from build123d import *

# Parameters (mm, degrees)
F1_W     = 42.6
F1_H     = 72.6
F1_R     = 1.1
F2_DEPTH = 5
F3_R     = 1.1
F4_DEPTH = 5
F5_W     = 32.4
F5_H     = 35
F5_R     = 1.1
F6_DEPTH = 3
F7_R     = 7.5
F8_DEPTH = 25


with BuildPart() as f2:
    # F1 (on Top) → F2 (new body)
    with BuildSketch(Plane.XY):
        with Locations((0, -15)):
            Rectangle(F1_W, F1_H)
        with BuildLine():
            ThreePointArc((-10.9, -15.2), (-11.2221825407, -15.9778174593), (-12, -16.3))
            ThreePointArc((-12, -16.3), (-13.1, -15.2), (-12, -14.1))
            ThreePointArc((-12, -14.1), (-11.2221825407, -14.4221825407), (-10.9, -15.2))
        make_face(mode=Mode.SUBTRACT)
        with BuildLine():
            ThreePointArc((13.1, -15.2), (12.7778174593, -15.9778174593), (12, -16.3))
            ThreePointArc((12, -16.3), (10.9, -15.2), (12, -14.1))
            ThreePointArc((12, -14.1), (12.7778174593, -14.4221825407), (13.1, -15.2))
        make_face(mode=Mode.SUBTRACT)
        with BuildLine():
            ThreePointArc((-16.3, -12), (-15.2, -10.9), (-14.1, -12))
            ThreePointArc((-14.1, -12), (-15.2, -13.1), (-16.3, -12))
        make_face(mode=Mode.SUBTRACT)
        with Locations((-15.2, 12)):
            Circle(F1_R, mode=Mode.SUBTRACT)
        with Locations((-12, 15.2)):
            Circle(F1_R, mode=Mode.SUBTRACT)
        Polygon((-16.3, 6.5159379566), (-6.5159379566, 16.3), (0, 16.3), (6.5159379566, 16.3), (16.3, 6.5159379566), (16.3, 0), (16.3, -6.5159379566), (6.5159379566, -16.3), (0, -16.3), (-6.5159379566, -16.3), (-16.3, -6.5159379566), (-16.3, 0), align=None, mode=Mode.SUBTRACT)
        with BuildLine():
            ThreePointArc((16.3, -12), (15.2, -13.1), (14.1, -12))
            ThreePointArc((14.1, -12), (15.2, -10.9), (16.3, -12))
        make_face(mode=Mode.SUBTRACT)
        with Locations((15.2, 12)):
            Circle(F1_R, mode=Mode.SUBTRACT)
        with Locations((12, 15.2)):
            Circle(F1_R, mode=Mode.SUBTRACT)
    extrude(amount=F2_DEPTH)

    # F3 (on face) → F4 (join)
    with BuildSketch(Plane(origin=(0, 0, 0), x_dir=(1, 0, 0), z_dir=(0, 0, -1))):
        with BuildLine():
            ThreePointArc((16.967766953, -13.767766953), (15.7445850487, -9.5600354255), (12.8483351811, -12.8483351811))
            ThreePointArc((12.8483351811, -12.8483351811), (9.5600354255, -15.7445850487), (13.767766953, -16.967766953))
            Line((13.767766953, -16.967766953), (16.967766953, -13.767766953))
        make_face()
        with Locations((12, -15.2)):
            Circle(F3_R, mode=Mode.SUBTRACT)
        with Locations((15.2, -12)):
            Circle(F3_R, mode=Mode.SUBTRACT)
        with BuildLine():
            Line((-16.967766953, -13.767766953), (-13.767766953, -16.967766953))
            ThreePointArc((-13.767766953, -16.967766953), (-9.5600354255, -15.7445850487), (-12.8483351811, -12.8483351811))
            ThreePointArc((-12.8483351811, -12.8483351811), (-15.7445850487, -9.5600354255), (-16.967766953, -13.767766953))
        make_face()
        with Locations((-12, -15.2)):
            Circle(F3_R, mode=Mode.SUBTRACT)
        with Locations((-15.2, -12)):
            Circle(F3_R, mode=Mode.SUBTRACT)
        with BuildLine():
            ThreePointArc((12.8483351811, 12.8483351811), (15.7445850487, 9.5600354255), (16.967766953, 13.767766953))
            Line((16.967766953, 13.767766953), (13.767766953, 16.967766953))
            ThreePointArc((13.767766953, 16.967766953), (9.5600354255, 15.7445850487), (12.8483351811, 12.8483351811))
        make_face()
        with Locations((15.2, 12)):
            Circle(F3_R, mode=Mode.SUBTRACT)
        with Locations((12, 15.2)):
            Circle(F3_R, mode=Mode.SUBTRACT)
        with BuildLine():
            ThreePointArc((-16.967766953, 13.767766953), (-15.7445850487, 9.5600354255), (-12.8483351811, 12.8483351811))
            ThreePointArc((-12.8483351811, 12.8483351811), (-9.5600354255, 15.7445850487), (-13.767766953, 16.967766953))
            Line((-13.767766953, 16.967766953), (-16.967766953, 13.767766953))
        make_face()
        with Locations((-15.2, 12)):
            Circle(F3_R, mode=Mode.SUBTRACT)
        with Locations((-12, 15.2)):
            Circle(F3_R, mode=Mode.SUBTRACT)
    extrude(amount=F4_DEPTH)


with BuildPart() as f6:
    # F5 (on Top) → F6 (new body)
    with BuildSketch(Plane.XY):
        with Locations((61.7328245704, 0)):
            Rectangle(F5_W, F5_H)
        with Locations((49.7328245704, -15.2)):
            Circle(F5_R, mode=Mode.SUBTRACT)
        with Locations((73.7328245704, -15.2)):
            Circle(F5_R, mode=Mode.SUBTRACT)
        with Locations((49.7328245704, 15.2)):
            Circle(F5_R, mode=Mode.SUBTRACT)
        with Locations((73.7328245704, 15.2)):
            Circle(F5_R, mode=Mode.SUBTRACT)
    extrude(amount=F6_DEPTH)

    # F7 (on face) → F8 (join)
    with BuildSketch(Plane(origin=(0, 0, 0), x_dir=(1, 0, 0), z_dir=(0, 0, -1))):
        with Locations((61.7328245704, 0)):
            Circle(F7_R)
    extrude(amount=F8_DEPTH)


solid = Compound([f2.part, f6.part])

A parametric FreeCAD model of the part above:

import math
import FreeCAD as App
import Part
import Sketcher
Q = App.Units.Quantity


def add_polygon(sketch, points):
    """Adds a closed chain of lines whose ends are joined by coincident constraints."""
    first, n = sketch.GeometryCount, len(points)
    for a, b in zip(points, points[1:] + points[:1]):
        sketch.addGeometry(Part.LineSegment(App.Vector(*a, 0), App.Vector(*b, 0)), False)
    for i in range(n):
        sketch.addConstraint(Sketcher.Constraint("Coincident", first + i, 2, first + (i + 1) % n, 1))

doc = App.newDocument("Part")
params = doc.addObject("Spreadsheet::Sheet", "Params")
for row, (alias, value) in enumerate([
    ("sketch1_diameter", "2.2 mm"),
    ("sketch1_width", "42.6 mm"),
    ("sketch1_height", "72.6 mm"),
    ("pad1_length", "5 mm"),
    ("sketch2_diameter", "2.2 mm"),
    ("sketch2_radius", "2.5 mm"),
    ("pad2_length", "5 mm"),
    ("sketch3_diameter", "2.2 mm"),
    ("sketch3_height", "35 mm"),
    ("sketch3_width", "32.4 mm"),
    ("pad3_length", "3 mm"),
    ("sketch4_diameter", "15 mm"),
    ("pad4_length", "25 mm"),
], start=1):
    params.set(f"A{row}", alias)
    params.set(f"B{row}", "=" + value)
    params.setAlias(f"B{row}", alias)

body = doc.addObject("PartDesign::Body", "Body")

# Sketch on XY plane
sketch1 = body.newObject("Sketcher::SketchObject", "Sketch")
sketch1.AttachmentSupport = (doc.getObject("XY_Plane"), [""])
sketch1.MapMode = "FlatFace"
add_polygon(sketch1, [(-21.3, 21.3), (-21.3, -51.3), (21.3, -51.3), (21.3, 21.3)])  # lines 0-3
sketch1.addGeometry(Part.ArcOfCircle(Part.Circle(App.Vector(-12, -15.2, 0), App.Vector(0, 0, 1), 1.1), math.radians(0), math.radians(90)), False)  # 4
sketch1.addGeometry(Part.ArcOfCircle(Part.Circle(App.Vector(-12, -15.2, 0), App.Vector(0, 0, 1), 1.1), math.radians(-90), math.radians(0)), False)  # 5
sketch1.addGeometry(Part.ArcOfCircle(Part.Circle(App.Vector(-12, -15.2, 0), App.Vector(0, 0, 1), 1.1), math.radians(90), math.radians(270)), False)  # 6
sketch1.addGeometry(Part.Circle(App.Vector(-15.2, -12, 0), App.Vector(0, 0, 1), 1.1), False)  # 7
sketch1.addGeometry(Part.ArcOfCircle(Part.Circle(App.Vector(12, -15.2, 0), App.Vector(0, 0, 1), 1.1), math.radians(0), math.radians(90)), False)  # 8
sketch1.addGeometry(Part.ArcOfCircle(Part.Circle(App.Vector(12, -15.2, 0), App.Vector(0, 0, 1), 1.1), math.radians(-90), math.radians(0)), False)  # 9
sketch1.addGeometry(Part.ArcOfCircle(Part.Circle(App.Vector(12, -15.2, 0), App.Vector(0, 0, 1), 1.1), math.radians(90), math.radians(270)), False)  # 10
sketch1.addGeometry(Part.Circle(App.Vector(15.2, -12, 0), App.Vector(0, 0, 1), 1.1), False)  # 11
sketch1.addGeometry(Part.Circle(App.Vector(-15.2, 12, 0), App.Vector(0, 0, 1), 1.1), False)  # 12
sketch1.addGeometry(Part.Circle(App.Vector(-12, 15.2, 0), App.Vector(0, 0, 1), 1.1), False)  # 13
add_polygon(sketch1, [(-16.3, -6.5), (-16.3, 6.5), (-6.5, 16.3), (6.5, 16.3), (16.3, 6.5), (16.3, -6.5), (6.5, -16.3), (-6.5, -16.3)])  # lines 14-21
sketch1.addGeometry(Part.Circle(App.Vector(15.2, 12, 0), App.Vector(0, 0, 1), 1.1), False)  # 22
sketch1.addGeometry(Part.Circle(App.Vector(12, 15.2, 0), App.Vector(0, 0, 1), 1.1), False)  # 23
sketch1.addConstraint(Sketcher.Constraint("Tangent", 4, 1, 5, 2))
sketch1.addConstraint(Sketcher.Constraint("Tangent", 5, 1, 6, 2))
sketch1.addConstraint(Sketcher.Constraint("Tangent", 6, 1, 4, 2))
sketch1.addConstraint(Sketcher.Constraint("Tangent", 8, 1, 9, 2))
sketch1.addConstraint(Sketcher.Constraint("Tangent", 9, 1, 10, 2))
sketch1.addConstraint(Sketcher.Constraint("Tangent", 10, 1, 8, 2))
sketch1.addConstraint(Sketcher.Constraint("Vertical", 0))
sketch1.addConstraint(Sketcher.Constraint("Horizontal", 1))
sketch1.addConstraint(Sketcher.Constraint("Vertical", 2))
sketch1.addConstraint(Sketcher.Constraint("Horizontal", 3))
sketch1.addConstraint(Sketcher.Constraint("Vertical", 14))
sketch1.addConstraint(Sketcher.Constraint("Horizontal", 16))
sketch1.addConstraint(Sketcher.Constraint("Vertical", 18))
sketch1.addConstraint(Sketcher.Constraint("Horizontal", 20))
sketch1.addConstraint(Sketcher.Constraint("Equal", 6, 7))
sketch1.addConstraint(Sketcher.Constraint("Equal", 7, 8))
sketch1.addConstraint(Sketcher.Constraint("Equal", 10, 11))
sketch1.addConstraint(Sketcher.Constraint("Equal", 11, 12))
sketch1.addConstraint(Sketcher.Constraint("Equal", 12, 13))
sketch1.addConstraint(Sketcher.Constraint("Equal", 13, 22))
sketch1.addConstraint(Sketcher.Constraint("Equal", 22, 23))
sketch1.addConstraint(Sketcher.Constraint("Symmetric", 11, 3, 12, 3, -1, 1))
sketch1.addConstraint(Sketcher.Constraint("Symmetric", 8, 3, 13, 3, -1, 1))
sketch1.addConstraint(Sketcher.Constraint("Symmetric", 7, 3, 22, 3, -1, 1))
sketch1.addConstraint(Sketcher.Constraint("Symmetric", 4, 3, 23, 3, -1, 1))
sketch1.addConstraint(Sketcher.Constraint("Symmetric", 14, 2, 18, 2, -1, 1))
sketch1.addConstraint(Sketcher.Constraint("Symmetric", 15, 2, 19, 2, -1, 1))
sketch1.addConstraint(Sketcher.Constraint("Symmetric", 4, 3, 8, 3, -2))
sketch1.addConstraint(Sketcher.Constraint("Symmetric", 7, 3, 11, 3, -2))
sketch1.addConstraint(Sketcher.Constraint("Perpendicular", 15, 17))
sketch1.addConstraint(Sketcher.Constraint("Perpendicular", 19, 21))
sketch1.addConstraint(Sketcher.Constraint("Horizontal", 10, 3, 4, 1))
sketch1.addConstraint(Sketcher.Constraint("Horizontal", 4, 1, 8, 1))
sketch1.addConstraint(Sketcher.Constraint("Horizontal", 14, 2, 17, 2))
sketch1.addConstraint(Sketcher.Constraint("Horizontal", 9, 1, 19, 2))
sketch1.addConstraint(Sketcher.Constraint("Horizontal", 18, 2, 21, 2))
sketch1.addConstraint(Sketcher.Constraint("Vertical", 13, 3, 5, 1))
sketch1.addConstraint(Sketcher.Constraint("Vertical", 5, 1, 6, 1))
sketch1.addConstraint(Sketcher.Constraint("Vertical", 23, 3, 9, 1))
sketch1.addConstraint(Sketcher.Constraint("Vertical", 9, 1, 10, 1))
sketch1.addConstraint(Sketcher.Constraint("Vertical", 16, 2, 19, 2))
sketch1.addConstraint(Sketcher.Constraint("Equal", 20, 14))
sketch1.addConstraint(Sketcher.Constraint("Diameter", 7, Q("2.2 mm")))
sketch1.addConstraint(Sketcher.Constraint("DistanceX", 1, 1, 1, 2, Q("42.6 mm")))
sketch1.addConstraint(Sketcher.Constraint("DistanceY", 0, 2, 0, 1, Q("72.6 mm")))
sketch1.addConstraint(Sketcher.Constraint("DistanceX", 4, 3, -1, 1, Q("12 mm")))
sketch1.addConstraint(Sketcher.Constraint("DistanceY", 7, 3, -1, 1, Q("12 mm")))
sketch1.addConstraint(Sketcher.Constraint("DistanceX", 3, 2, 14, 2, Q("5 mm")))
sketch1.addConstraint(Sketcher.Constraint("DistanceY", 15, 2, 3, 2, Q("5 mm")))
sketch1.addConstraint(Sketcher.Constraint("DistanceX", 17, 2, 2, 2, Q("5 mm")))
sketch1.addConstraint(Sketcher.Constraint("DistanceX", 7, 3, -1, 1, Q("15.2 mm")))
sketch1.addConstraint(Sketcher.Constraint("DistanceX", 16, 1, 16, 2, Q("13.031876 mm")))
sketch1.setExpression("Constraints[54]", "Params.sketch1_diameter")
sketch1.setExpression("Constraints[55]", "Params.sketch1_width")
sketch1.setExpression("Constraints[56]", "Params.sketch1_height")
pad1 = body.newObject("PartDesign::Pad", "Pad")
pad1.Profile = sketch1
pad1.setExpression("Length", "Params.pad1_length")

# Sketch on XY plane
sketch2 = body.newObject("Sketcher::SketchObject", "Sketch001")
sketch2.AttachmentSupport = (doc.getObject("XY_Plane"), [""])
sketch2.MapMode = "FlatFace"
sketch2.addGeometry(Part.ArcOfCircle(Part.Circle(App.Vector(15.2, 12, 0), App.Vector(0, 0, 1), 2.5), math.radians(160), math.radians(405)), False)
sketch2.addGeometry(Part.ArcOfCircle(Part.Circle(App.Vector(12, 15.2, 0), App.Vector(0, 0, 1), 2.5), math.radians(45), math.radians(290)), False)
sketch2.addGeometry(Part.LineSegment(App.Vector(13.8, 17, 0), App.Vector(17, 13.8, 0)), False)
sketch2.addGeometry(Part.Circle(App.Vector(12, 15.2, 0), App.Vector(0, 0, 1), 1.1), False)
sketch2.addGeometry(Part.Circle(App.Vector(15.2, 12, 0), App.Vector(0, 0, 1), 1.1), False)
sketch2.addGeometry(Part.LineSegment(App.Vector(-17, 13.8, 0), App.Vector(-13.8, 17, 0)), False)
sketch2.addGeometry(Part.ArcOfCircle(Part.Circle(App.Vector(-12, 15.2, 0), App.Vector(0, 0, 1), 2.5), math.radians(-110), math.radians(135)), False)
sketch2.addGeometry(Part.ArcOfCircle(Part.Circle(App.Vector(-15.2, 12, 0), App.Vector(0, 0, 1), 2.5), math.radians(135), math.radians(380)), False)
sketch2.addGeometry(Part.Circle(App.Vector(-12, 15.2, 0), App.Vector(0, 0, 1), 1.1), False)
sketch2.addGeometry(Part.Circle(App.Vector(-15.2, 12, 0), App.Vector(0, 0, 1), 1.1), False)
sketch2.addGeometry(Part.ArcOfCircle(Part.Circle(App.Vector(15.2, -12, 0), App.Vector(0, 0, 1), 2.5), math.radians(-45), math.radians(200)), False)
sketch2.addGeometry(Part.LineSegment(App.Vector(17, -13.8, 0), App.Vector(13.8, -17, 0)), False)
sketch2.addGeometry(Part.ArcOfCircle(Part.Circle(App.Vector(12, -15.2, 0), App.Vector(0, 0, 1), 2.5), math.radians(70), math.radians(315)), False)
sketch2.addGeometry(Part.Circle(App.Vector(15.2, -12, 0), App.Vector(0, 0, 1), 1.1), False)
sketch2.addGeometry(Part.Circle(App.Vector(12, -15.2, 0), App.Vector(0, 0, 1), 1.1), False)
sketch2.addGeometry(Part.ArcOfCircle(Part.Circle(App.Vector(-15.2, -12, 0), App.Vector(0, 0, 1), 2.5), math.radians(-20), math.radians(225)), False)
sketch2.addGeometry(Part.ArcOfCircle(Part.Circle(App.Vector(-12, -15.2, 0), App.Vector(0, 0, 1), 2.5), math.radians(-135), math.radians(110)), False)
sketch2.addGeometry(Part.LineSegment(App.Vector(-13.8, -17, 0), App.Vector(-17, -13.8, 0)), False)
sketch2.addGeometry(Part.Circle(App.Vector(-15.2, -12, 0), App.Vector(0, 0, 1), 1.1), False)
sketch2.addGeometry(Part.Circle(App.Vector(-12, -15.2, 0), App.Vector(0, 0, 1), 1.1), False)
sketch2.addConstraint(Sketcher.Constraint("Coincident", 0, 1, 1, 2))
sketch2.addConstraint(Sketcher.Constraint("Tangent", 1, 1, 2, 1))
sketch2.addConstraint(Sketcher.Constraint("Tangent", 2, 2, 0, 2))
sketch2.addConstraint(Sketcher.Constraint("Tangent", 5, 2, 6, 2))
sketch2.addConstraint(Sketcher.Constraint("Coincident", 6, 1, 7, 2))
sketch2.addConstraint(Sketcher.Constraint("Tangent", 7, 1, 5, 1))
sketch2.addConstraint(Sketcher.Constraint("Tangent", 10, 1, 11, 1))
sketch2.addConstraint(Sketcher.Constraint("Tangent", 11, 2, 12, 2))
sketch2.addConstraint(Sketcher.Constraint("Coincident", 12, 1, 10, 2))
sketch2.addConstraint(Sketcher.Constraint("Coincident", 15, 1, 16, 2))
sketch2.addConstraint(Sketcher.Constraint("Tangent", 16, 1, 17, 1))
sketch2.addConstraint(Sketcher.Constraint("Tangent", 17, 2, 15, 2))
sketch2.addConstraint(Sketcher.Constraint("Coincident", 3, 3, 1, 3))
sketch2.addConstraint(Sketcher.Constraint("Coincident", 4, 3, 0, 3))
sketch2.addConstraint(Sketcher.Constraint("Coincident", 8, 3, 6, 3))
sketch2.addConstraint(Sketcher.Constraint("Coincident", 9, 3, 7, 3))
sketch2.addConstraint(Sketcher.Constraint("Coincident", 13, 3, 10, 3))
sketch2.addConstraint(Sketcher.Constraint("Coincident", 14, 3, 12, 3))
sketch2.addConstraint(Sketcher.Constraint("Coincident", 18, 3, 15, 3))
sketch2.addConstraint(Sketcher.Constraint("Coincident", 19, 3, 16, 3))
sketch2.addConstraint(Sketcher.Constraint("Equal", 0, 1))
sketch2.addConstraint(Sketcher.Constraint("Equal", 3, 4))
sketch2.addConstraint(Sketcher.Constraint("Equal", 1, 6))
sketch2.addConstraint(Sketcher.Constraint("Equal", 6, 7))
sketch2.addConstraint(Sketcher.Constraint("Equal", 4, 8))
sketch2.addConstraint(Sketcher.Constraint("Equal", 8, 9))
sketch2.addConstraint(Sketcher.Constraint("Equal", 7, 10))
sketch2.addConstraint(Sketcher.Constraint("Equal", 10, 12))
sketch2.addConstraint(Sketcher.Constraint("Equal", 9, 13))
sketch2.addConstraint(Sketcher.Constraint("Equal", 13, 14))
sketch2.addConstraint(Sketcher.Constraint("Equal", 12, 15))
sketch2.addConstraint(Sketcher.Constraint("Equal", 15, 16))
sketch2.addConstraint(Sketcher.Constraint("Equal", 14, 18))
sketch2.addConstraint(Sketcher.Constraint("Equal", 18, 19))
sketch2.addConstraint(Sketcher.Constraint("Symmetric", 7, 3, 10, 3, -1, 1))
sketch2.addConstraint(Sketcher.Constraint("Symmetric", 6, 3, 12, 3, -1, 1))
sketch2.addConstraint(Sketcher.Constraint("Symmetric", 0, 3, 15, 3, -1, 1))
sketch2.addConstraint(Sketcher.Constraint("Symmetric", 1, 3, 16, 3, -1, 1))
sketch2.addConstraint(Sketcher.Constraint("Symmetric", 1, 3, 6, 3, -2))
sketch2.addConstraint(Sketcher.Constraint("Symmetric", 0, 3, 7, 3, -2))
sketch2.addConstraint(Sketcher.Constraint("Perpendicular", 2, 5))
sketch2.addConstraint(Sketcher.Constraint("Diameter", 3, Q("2.2 mm")))
sketch2.addConstraint(Sketcher.Constraint("Radius", 0, Q("2.5 mm")))
sketch2.addConstraint(Sketcher.Constraint("DistanceY", -1, 1, 0, 3, Q("12 mm")))
sketch2.addConstraint(Sketcher.Constraint("DistanceX", -1, 1, 1, 3, Q("12 mm")))
sketch2.addConstraint(Sketcher.Constraint("DistanceX", -1, 1, 0, 3, Q("15.2 mm")))
sketch2.setExpression("Constraints[41]", "Params.sketch2_diameter")
sketch2.setExpression("Constraints[42]", "Params.sketch2_radius")
pad2 = body.newObject("PartDesign::Pad", "Pad001")
pad2.Profile = sketch2
pad2.setExpression("Length", "Params.pad2_length")
pad2.Reversed = True
body2 = doc.addObject("PartDesign::Body", "Body001")

# Sketch on XY plane
sketch3 = body2.newObject("Sketcher::SketchObject", "Sketch002")
sketch3.AttachmentSupport = (doc.getObject("XY_Plane001"), [""])
sketch3.MapMode = "FlatFace"
add_polygon(sketch3, [(45.5, 17.5), (45.5, -17.5), (77.9, -17.5), (77.9, 17.5)])  # lines 0-3
sketch3.addGeometry(Part.Circle(App.Vector(49.7, -15.2, 0), App.Vector(0, 0, 1), 1.1), False)  # 4
sketch3.addGeometry(Part.Circle(App.Vector(73.7, -15.2, 0), App.Vector(0, 0, 1), 1.1), False)  # 5
sketch3.addGeometry(Part.Circle(App.Vector(49.7, 15.2, 0), App.Vector(0, 0, 1), 1.1), False)  # 6
sketch3.addGeometry(Part.Circle(App.Vector(73.7, 15.2, 0), App.Vector(0, 0, 1), 1.1), False)  # 7
sketch3.addConstraint(Sketcher.Constraint("Vertical", 0))
sketch3.addConstraint(Sketcher.Constraint("Horizontal", 1))
sketch3.addConstraint(Sketcher.Constraint("Vertical", 2))
sketch3.addConstraint(Sketcher.Constraint("Horizontal", 3))
sketch3.addConstraint(Sketcher.Constraint("Equal", 4, 5))
sketch3.addConstraint(Sketcher.Constraint("Equal", 5, 6))
sketch3.addConstraint(Sketcher.Constraint("Equal", 6, 7))
sketch3.addConstraint(Sketcher.Constraint("Symmetric", 4, 3, 6, 3, -1))
sketch3.addConstraint(Sketcher.Constraint("Symmetric", 5, 3, 7, 3, -1))
sketch3.addConstraint(Sketcher.Constraint("Horizontal", 4, 3, 5, 3))
sketch3.addConstraint(Sketcher.Constraint("Diameter", 4, Q("2.2 mm")))
sketch3.addConstraint(Sketcher.Constraint("DistanceY", 0, 2, 0, 1, Q("35 mm")))
sketch3.addConstraint(Sketcher.Constraint("DistanceX", 1, 1, 1, 2, Q("32.4 mm")))
sketch3.addConstraint(Sketcher.Constraint("DistanceX", 4, 3, 5, 3, Q("24 mm")))
sketch3.addConstraint(Sketcher.Constraint("DistanceY", 4, 3, -1, 1, Q("15.2 mm")))
sketch3.addConstraint(Sketcher.Constraint("DistanceY", 0, 2, -1, 1, Q("17.5 mm")))
sketch3.addConstraint(Sketcher.Constraint("DistanceX", 0, 2, 4, 3, Q("4.2 mm")))
sketch3.addConstraint(Sketcher.Constraint("DistanceX", -1, 1, 4, 3, Q("49.732825 mm")))
sketch3.setExpression("Constraints[14]", "Params.sketch3_diameter")
sketch3.setExpression("Constraints[15]", "Params.sketch3_height")
sketch3.setExpression("Constraints[16]", "Params.sketch3_width")
pad3 = body2.newObject("PartDesign::Pad", "Pad002")
pad3.Profile = sketch3
pad3.setExpression("Length", "Params.pad3_length")

# Sketch on XY plane
sketch4 = body2.newObject("Sketcher::SketchObject", "Sketch003")
sketch4.AttachmentSupport = (doc.getObject("XY_Plane001"), [""])
sketch4.MapMode = "FlatFace"
sketch4.addGeometry(Part.Circle(App.Vector(62, 0, 0), App.Vector(0, 0, 1), 8), False)
sketch4.addConstraint(Sketcher.Constraint("PointOnObject", 0, 3, -1))
sketch4.addConstraint(Sketcher.Constraint("Diameter", 0, Q("15 mm")))
sketch4.addConstraint(Sketcher.Constraint("DistanceX", -1, 1, 0, 3, Q("61.732825 mm")))
sketch4.setExpression("Constraints[1]", "Params.sketch4_diameter")
pad4 = body2.newObject("PartDesign::Pad", "Pad003")
pad4.Profile = sketch4
pad4.setExpression("Length", "Params.pad4_length")
pad4.Reversed = True

doc.recompute()
